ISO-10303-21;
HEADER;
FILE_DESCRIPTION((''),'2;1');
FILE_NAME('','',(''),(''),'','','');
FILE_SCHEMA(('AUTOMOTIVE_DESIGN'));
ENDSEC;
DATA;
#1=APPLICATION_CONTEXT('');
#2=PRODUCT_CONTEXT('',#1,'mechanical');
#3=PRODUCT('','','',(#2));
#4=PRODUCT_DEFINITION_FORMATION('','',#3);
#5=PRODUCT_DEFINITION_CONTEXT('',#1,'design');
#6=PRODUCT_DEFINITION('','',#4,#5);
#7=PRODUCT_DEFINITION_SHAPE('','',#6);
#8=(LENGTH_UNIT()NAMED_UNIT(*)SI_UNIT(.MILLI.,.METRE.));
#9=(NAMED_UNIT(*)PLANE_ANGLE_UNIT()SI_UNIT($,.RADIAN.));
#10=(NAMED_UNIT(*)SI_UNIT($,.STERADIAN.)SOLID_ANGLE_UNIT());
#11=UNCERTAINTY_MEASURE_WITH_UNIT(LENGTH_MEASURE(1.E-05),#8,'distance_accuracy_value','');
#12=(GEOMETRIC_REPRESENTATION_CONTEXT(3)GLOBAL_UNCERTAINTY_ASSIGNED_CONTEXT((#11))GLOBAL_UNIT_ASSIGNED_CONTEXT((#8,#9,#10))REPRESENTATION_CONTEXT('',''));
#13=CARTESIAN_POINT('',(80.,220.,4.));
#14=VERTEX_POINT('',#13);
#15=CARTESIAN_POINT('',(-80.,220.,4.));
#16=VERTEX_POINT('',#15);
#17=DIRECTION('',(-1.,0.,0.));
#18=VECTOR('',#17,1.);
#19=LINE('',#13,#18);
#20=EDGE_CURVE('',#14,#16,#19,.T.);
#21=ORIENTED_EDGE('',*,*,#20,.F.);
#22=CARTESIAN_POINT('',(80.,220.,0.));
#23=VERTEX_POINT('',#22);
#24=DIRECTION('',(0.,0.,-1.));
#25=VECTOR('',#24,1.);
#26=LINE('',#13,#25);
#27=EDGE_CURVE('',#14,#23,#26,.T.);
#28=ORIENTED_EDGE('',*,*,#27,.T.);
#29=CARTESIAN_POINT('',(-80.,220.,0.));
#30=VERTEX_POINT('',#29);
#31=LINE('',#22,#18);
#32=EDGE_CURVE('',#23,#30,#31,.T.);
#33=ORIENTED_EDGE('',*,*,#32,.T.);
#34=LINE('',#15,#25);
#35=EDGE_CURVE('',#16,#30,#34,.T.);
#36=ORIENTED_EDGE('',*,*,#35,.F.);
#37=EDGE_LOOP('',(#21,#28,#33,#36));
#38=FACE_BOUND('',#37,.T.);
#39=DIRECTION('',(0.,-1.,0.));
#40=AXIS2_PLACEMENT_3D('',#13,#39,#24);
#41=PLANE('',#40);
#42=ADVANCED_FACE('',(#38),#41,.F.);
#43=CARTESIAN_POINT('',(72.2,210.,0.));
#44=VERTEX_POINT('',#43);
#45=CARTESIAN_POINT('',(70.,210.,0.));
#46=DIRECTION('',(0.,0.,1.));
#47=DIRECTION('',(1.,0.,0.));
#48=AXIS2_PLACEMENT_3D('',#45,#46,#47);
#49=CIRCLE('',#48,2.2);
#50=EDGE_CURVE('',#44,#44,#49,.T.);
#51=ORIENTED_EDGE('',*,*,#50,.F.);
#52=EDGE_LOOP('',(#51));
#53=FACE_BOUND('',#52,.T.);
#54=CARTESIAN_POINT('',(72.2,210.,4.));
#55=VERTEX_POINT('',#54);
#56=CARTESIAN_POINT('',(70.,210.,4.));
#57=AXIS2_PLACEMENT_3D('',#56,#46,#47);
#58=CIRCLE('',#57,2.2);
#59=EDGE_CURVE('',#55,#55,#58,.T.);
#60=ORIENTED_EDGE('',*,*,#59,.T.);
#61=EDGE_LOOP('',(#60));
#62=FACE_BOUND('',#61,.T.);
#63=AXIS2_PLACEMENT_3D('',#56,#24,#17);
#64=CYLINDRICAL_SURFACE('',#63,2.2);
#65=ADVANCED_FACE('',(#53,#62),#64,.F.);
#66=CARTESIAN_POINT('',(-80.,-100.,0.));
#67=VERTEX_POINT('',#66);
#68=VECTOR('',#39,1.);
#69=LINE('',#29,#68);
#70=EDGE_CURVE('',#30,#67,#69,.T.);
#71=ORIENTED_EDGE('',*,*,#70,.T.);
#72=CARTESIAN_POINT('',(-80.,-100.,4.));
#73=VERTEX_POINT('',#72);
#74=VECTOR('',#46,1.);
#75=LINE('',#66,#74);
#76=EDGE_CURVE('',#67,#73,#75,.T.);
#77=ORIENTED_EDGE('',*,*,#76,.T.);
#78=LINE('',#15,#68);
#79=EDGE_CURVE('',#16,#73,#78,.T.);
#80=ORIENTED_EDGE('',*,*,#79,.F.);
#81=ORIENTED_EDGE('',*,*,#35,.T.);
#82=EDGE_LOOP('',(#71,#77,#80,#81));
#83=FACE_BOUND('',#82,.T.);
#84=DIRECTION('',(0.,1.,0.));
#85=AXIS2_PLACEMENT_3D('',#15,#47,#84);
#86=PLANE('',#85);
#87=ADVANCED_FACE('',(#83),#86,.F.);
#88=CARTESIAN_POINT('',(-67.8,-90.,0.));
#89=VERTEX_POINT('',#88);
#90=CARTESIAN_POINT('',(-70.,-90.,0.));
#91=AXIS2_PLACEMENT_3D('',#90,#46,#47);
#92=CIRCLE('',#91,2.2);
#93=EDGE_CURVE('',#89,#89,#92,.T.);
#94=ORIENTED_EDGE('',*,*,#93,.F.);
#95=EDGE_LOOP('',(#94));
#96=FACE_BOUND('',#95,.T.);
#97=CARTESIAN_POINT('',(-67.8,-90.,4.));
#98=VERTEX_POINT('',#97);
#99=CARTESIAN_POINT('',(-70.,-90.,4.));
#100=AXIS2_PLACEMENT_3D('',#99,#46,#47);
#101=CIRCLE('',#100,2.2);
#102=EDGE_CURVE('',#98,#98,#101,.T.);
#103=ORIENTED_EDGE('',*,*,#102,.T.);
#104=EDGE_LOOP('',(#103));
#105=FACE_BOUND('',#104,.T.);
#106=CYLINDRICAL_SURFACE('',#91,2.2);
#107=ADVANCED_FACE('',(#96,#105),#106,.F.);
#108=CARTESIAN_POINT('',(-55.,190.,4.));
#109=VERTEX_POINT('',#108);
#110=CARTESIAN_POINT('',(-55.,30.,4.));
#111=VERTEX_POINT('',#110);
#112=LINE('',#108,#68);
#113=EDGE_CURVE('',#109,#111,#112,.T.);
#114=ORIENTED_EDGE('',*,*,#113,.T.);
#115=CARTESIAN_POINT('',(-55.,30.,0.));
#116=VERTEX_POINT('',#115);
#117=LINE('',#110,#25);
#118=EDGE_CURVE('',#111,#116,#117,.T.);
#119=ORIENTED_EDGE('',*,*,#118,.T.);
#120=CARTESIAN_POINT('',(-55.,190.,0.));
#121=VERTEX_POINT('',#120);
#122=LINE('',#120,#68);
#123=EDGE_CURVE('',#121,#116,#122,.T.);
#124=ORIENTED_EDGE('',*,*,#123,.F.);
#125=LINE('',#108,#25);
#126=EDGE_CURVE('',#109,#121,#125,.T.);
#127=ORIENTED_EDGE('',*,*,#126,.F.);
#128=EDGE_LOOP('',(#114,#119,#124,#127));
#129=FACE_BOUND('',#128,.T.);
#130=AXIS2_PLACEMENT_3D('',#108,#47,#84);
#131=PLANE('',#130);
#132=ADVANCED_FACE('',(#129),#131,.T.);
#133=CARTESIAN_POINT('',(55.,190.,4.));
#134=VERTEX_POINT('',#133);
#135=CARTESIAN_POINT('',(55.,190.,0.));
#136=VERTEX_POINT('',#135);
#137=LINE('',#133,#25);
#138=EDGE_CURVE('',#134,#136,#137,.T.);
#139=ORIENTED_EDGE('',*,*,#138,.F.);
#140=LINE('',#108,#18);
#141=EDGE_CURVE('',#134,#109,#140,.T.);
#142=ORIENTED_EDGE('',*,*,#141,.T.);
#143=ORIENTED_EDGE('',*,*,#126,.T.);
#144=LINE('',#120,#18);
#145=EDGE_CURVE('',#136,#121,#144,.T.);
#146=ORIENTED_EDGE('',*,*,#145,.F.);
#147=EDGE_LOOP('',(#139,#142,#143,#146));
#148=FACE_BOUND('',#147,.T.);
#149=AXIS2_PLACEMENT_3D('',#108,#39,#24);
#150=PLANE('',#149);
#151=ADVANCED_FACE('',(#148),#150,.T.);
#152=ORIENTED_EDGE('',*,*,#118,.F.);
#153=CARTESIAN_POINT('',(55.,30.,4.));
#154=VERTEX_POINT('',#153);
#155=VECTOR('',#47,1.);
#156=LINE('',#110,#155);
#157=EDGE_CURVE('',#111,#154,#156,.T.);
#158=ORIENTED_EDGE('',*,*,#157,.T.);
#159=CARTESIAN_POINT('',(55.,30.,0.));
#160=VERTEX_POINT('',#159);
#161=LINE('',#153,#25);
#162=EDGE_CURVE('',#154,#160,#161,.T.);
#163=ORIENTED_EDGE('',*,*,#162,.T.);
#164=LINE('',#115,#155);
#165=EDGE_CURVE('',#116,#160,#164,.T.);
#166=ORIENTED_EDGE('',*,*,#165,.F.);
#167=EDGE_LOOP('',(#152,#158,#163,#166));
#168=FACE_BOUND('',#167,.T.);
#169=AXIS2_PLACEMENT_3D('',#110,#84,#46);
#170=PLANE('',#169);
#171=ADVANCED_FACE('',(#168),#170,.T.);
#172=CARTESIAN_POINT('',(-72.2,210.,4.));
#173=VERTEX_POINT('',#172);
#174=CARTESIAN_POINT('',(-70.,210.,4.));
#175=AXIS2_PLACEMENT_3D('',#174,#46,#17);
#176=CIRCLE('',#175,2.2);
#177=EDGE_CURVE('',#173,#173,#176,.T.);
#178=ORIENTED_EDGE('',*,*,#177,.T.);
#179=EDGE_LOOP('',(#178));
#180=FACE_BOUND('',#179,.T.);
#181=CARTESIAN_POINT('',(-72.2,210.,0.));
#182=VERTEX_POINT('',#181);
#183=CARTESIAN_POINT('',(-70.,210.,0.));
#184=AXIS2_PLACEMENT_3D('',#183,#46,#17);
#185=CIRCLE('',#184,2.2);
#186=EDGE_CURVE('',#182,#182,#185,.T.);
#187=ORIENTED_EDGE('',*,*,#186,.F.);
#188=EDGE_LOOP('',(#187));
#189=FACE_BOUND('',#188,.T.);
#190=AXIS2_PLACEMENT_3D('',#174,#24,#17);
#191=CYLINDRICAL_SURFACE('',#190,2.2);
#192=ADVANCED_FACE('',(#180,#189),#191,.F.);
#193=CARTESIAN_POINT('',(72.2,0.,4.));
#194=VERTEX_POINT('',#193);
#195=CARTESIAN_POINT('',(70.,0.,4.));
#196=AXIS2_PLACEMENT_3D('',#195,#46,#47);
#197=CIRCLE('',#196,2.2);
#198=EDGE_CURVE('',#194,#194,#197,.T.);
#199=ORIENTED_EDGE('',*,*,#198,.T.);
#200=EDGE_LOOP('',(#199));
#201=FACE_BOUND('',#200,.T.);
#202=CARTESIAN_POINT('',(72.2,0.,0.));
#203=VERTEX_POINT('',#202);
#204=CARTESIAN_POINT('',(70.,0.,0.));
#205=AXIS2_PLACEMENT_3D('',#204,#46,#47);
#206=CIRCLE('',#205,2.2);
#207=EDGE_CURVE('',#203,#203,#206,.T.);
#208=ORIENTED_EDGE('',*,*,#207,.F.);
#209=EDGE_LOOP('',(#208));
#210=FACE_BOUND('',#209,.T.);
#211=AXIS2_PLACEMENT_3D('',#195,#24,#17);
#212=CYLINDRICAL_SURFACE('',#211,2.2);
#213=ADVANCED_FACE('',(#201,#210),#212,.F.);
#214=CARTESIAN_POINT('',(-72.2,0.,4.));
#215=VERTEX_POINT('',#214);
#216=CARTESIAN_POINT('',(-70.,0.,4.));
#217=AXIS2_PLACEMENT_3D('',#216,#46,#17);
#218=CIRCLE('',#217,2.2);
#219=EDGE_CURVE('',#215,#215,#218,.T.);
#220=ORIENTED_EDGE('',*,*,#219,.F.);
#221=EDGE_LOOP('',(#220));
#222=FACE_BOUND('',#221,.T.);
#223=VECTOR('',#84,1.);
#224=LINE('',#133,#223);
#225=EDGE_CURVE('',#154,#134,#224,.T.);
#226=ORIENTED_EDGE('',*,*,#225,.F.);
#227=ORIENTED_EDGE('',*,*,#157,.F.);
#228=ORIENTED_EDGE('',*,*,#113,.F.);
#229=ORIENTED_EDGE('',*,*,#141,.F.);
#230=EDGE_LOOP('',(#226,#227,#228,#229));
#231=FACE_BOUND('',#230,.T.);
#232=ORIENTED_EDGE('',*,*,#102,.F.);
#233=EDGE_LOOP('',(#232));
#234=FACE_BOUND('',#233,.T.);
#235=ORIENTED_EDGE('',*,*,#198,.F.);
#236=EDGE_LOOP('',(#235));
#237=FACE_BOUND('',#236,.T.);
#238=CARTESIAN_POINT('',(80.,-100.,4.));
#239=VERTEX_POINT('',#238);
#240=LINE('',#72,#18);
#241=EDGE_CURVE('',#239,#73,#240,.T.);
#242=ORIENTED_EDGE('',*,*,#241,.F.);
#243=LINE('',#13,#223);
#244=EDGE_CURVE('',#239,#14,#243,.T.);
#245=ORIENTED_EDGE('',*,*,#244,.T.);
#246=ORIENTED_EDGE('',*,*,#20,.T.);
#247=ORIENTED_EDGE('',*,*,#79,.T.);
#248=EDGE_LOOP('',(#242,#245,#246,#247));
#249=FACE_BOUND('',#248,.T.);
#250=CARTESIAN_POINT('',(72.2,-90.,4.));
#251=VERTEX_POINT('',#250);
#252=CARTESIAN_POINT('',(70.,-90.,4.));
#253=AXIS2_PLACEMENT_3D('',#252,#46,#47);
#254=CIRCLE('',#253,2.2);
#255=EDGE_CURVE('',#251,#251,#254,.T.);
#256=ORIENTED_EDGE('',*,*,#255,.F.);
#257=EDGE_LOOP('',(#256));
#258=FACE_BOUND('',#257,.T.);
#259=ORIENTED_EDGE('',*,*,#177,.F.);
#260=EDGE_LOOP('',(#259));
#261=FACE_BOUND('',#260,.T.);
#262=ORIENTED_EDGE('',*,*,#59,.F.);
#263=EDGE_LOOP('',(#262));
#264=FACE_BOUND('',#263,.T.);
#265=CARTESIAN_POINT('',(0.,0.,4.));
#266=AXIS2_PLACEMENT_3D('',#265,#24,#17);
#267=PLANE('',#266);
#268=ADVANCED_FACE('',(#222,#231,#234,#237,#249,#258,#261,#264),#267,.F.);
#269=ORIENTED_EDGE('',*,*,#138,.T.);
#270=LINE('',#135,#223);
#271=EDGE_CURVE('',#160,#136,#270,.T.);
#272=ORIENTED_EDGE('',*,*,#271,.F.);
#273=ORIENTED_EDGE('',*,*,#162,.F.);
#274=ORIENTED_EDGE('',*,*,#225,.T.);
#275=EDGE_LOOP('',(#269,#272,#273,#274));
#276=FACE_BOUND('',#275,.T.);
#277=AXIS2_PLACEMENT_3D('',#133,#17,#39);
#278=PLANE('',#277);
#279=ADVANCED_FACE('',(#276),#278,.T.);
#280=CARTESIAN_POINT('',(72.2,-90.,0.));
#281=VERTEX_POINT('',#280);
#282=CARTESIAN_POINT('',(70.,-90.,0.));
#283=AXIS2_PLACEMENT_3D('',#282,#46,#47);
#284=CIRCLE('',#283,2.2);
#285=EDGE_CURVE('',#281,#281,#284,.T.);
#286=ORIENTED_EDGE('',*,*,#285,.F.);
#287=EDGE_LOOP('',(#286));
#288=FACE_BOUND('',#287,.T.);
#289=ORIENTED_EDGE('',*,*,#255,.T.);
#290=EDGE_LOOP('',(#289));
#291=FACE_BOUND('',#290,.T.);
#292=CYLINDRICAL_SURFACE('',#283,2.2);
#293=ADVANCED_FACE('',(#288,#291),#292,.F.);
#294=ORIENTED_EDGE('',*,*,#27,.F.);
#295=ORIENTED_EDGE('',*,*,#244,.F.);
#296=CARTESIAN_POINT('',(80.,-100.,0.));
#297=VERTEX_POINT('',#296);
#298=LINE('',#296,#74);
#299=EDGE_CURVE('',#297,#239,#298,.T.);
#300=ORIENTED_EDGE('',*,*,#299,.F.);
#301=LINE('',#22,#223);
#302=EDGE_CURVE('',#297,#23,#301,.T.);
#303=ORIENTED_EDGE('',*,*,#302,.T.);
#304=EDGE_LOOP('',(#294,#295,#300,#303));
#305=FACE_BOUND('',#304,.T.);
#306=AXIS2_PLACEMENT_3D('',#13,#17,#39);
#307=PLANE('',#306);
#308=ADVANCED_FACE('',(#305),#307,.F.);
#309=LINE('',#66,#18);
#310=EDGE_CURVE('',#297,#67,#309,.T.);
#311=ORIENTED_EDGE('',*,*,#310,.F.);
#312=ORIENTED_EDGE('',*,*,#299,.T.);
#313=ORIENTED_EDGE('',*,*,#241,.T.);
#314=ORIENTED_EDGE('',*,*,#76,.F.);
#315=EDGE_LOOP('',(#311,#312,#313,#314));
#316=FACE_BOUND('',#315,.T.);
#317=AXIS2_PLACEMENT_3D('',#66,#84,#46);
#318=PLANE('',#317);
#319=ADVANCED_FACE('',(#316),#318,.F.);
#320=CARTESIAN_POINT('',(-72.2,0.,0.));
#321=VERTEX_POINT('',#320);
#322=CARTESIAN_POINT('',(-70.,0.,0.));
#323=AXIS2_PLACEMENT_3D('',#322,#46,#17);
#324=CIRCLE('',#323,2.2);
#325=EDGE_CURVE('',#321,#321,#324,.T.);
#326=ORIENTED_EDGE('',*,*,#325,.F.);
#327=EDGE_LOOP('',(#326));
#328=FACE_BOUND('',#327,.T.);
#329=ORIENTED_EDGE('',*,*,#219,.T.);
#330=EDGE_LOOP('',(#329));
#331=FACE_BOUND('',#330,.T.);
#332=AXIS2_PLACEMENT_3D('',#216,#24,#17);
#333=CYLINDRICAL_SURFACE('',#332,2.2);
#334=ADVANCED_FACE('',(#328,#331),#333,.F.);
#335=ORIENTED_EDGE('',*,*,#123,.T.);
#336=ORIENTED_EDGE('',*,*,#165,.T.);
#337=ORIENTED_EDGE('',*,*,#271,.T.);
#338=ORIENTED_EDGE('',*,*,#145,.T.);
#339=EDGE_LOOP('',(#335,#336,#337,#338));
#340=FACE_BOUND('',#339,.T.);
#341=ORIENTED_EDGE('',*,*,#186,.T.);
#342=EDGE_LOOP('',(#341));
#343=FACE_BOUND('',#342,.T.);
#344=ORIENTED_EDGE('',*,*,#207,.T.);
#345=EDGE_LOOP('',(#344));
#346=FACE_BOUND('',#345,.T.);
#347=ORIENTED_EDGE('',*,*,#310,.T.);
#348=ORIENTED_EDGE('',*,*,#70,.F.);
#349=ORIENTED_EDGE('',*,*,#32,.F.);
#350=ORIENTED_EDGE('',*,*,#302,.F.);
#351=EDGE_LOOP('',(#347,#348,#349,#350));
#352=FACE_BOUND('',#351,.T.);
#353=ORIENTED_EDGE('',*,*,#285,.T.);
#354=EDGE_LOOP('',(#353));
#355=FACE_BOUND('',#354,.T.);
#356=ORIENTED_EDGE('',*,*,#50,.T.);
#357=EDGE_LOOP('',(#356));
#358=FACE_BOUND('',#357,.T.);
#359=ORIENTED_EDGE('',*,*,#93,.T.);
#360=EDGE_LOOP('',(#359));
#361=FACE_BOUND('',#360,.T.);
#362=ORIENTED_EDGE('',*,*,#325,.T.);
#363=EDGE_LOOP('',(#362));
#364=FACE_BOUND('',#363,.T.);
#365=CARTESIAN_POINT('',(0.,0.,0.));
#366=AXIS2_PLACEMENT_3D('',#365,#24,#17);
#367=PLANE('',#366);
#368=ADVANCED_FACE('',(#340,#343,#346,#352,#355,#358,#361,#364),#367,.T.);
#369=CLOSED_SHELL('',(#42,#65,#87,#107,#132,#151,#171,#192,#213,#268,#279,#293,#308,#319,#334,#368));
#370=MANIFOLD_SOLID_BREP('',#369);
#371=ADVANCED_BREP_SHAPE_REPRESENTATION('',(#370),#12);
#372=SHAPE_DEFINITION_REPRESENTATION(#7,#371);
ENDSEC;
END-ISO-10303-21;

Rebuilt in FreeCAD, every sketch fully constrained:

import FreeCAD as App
import Part
import Sketcher

V = App.Vector
Q = App.Units.Quantity

doc = App.newDocument("Part")
body = doc.addObject("PartDesign::Body", "Body")

# Sketch on XY plane
sketch1 = body.newObject("Sketcher::SketchObject", "Sketch")
sketch1.AttachmentSupport = (doc.getObject("XY_Plane"), [""])
sketch1.MapMode = "FlatFace"
sketch1.addGeometry(Part.LineSegment(V(-80, 220, 0), V(-80, -220, 0)), False)
sketch1.addGeometry(Part.LineSegment(V(-80, -220, 0), V(80, -220, 0)), False)
sketch1.addGeometry(Part.LineSegment(V(80, -220, 0), V(80, 220, 0)), False)
sketch1.addGeometry(Part.LineSegment(V(80, 220, 0), V(-80, 220, 0)), False)
sketch1.addGeometry(Part.Circle(V(-70, -210, 0), V(0, 0, 1), 2.2), False)
sketch1.addGeometry(Part.Circle(V(70, -210, 0), V(0, 0, 1), 2.2), False)
sketch1.addGeometry(Part.Circle(V(-70, 0, 0), V(0, 0, 1), 2.2), False)
sketch1.addGeometry(Part.Circle(V(-70, 210, 0), V(0, 0, 1), 2.2), False)
sketch1.addGeometry(Part.Circle(V(70, 0, 0), V(0, 0, 1), 2.2), False)
sketch1.addGeometry(Part.LineSegment(V(55, 30, 0), V(-55, 30, 0)), False)
sketch1.addGeometry(Part.LineSegment(V(-55, 30, 0), V(-55, 190, 0)), False)
sketch1.addGeometry(Part.LineSegment(V(-55, 190, 0), V(55, 190, 0)), False)
sketch1.addGeometry(Part.LineSegment(V(55, 190, 0), V(55, 30, 0)), False)
sketch1.addGeometry(Part.Circle(V(70, 210, 0), V(0, 0, 1), 2.2), False)
sketch1.addConstraint(Sketcher.Constraint("Coincident", 0, 2, 1, 1))
sketch1.addConstraint(Sketcher.Constraint("Coincident", 1, 2, 2, 1))
sketch1.addConstraint(Sketcher.Constraint("Coincident", 2, 2, 3, 1))
sketch1.addConstraint(Sketcher.Constraint("Coincident", 3, 2, 0, 1))
sketch1.addConstraint(Sketcher.Constraint("Coincident", 9, 2, 10, 1))
sketch1.addConstraint(Sketcher.Constraint("Coincident", 10, 2, 11, 1))
sketch1.addConstraint(Sketcher.Constraint("Coincident", 11, 2, 12, 1))
sketch1.addConstraint(Sketcher.Constraint("Coincident", 12, 2, 9, 1))
sketch1.addConstraint(Sketcher.Constraint("Vertical", 0))
sketch1.addConstraint(Sketcher.Constraint("Horizontal", 1))
sketch1.addConstraint(Sketcher.Constraint("Vertical", 2))
sketch1.addConstraint(Sketcher.Constraint("Horizontal", 3))
sketch1.addConstraint(Sketcher.Constraint("Horizontal", 9))
sketch1.addConstraint(Sketcher.Constraint("Vertical", 10))
sketch1.addConstraint(Sketcher.Constraint("Horizontal", 11))
sketch1.addConstraint(Sketcher.Constraint("Vertical", 12))
sketch1.addConstraint(Sketcher.Constraint("Equal", 4, 5))
sketch1.addConstraint(Sketcher.Constraint("Equal", 5, 6))
sketch1.addConstraint(Sketcher.Constraint("Equal", 6, 7))
sketch1.addConstraint(Sketcher.Constraint("Equal", 7, 8))
sketch1.addConstraint(Sketcher.Constraint("Equal", 8, 13))
sketch1.addConstraint(Sketcher.Constraint("Symmetric", 5, 3, 7, 3, -1, 1))
sketch1.addConstraint(Sketcher.Constraint("Symmetric", 6, 3, 8, 3, -1, 1))
sketch1.addConstraint(Sketcher.Constraint("Symmetric", 4, 3, 13, 3, -1, 1))
sketch1.addConstraint(Sketcher.Constraint("Symmetric", 0, 2, 2, 2, -1, 1))
sketch1.addConstraint(Sketcher.Constraint("Symmetric", 4, 3, 5, 3, -2))
sketch1.addConstraint(Sketcher.Constraint("PointOnObject", 6, 3, -1))
sketch1.addConstraint(Sketcher.Constraint("Vertical", 4, 3, 6, 3))
sketch1.addConstraint(Sketcher.Constraint("Equal", 3, 10))
sketch1.addConstraint(Sketcher.Constraint("Diameter", 4, Q("4.4 mm")))
sketch1.addConstraint(Sketcher.Constraint("DistanceX", 1, 1, 1, 2, Q("160 mm")))
sketch1.addConstraint(Sketcher.Constraint("DistanceX", 9, 2, 9, 1, Q("110 mm")))
sketch1.addConstraint(Sketcher.Constraint("DistanceY", 0, 2, 0, 1, Q("440 mm")))
sketch1.addConstraint(Sketcher.Constraint("DistanceX", 4, 3, -1, 1, Q("70 mm")))
sketch1.addConstraint(Sketcher.Constraint("DistanceY", 4, 3, -1, 1, Q("210 mm")))
sketch1.addConstraint(Sketcher.Constraint("DistanceX", 9, 2, -1, 1, Q("55 mm")))
sketch1.addConstraint(Sketcher.Constraint("DistanceY", -1, 1, 9, 2, Q("30 mm")))
pad1 = body.newObject("PartDesign::Pad", "Pad")
pad1.Profile = sketch1
pad1.Length = 4

# Sketch on XY plane
sketch2 = body.newObject("Sketcher::SketchObject", "Sketch001")
sketch2.AttachmentSupport = (doc.getObject("XY_Plane"), [""])
sketch2.MapMode = "FlatFace"
sketch2.AttachmentOffset = App.Placement(V(0, 0, 4), App.Rotation())
sketch2.addGeometry(Part.Circle(V(-70, -90, 0), V(0, 0, 1), 2.2), False)
sketch2.addGeometry(Part.Circle(V(70, -90, 0), V(0, 0, 1), 2.2), False)
sketch2.addGeometry(Part.LineSegment(V(-80, -100, 0), V(-80, -220, 0)), False)
sketch2.addGeometry(Part.LineSegment(V(-80, -220, 0), V(80, -220, 0)), False)
sketch2.addGeometry(Part.LineSegment(V(80, -220, 0), V(80, -100, 0)), False)
sketch2.addGeometry(Part.LineSegment(V(80, -100, 0), V(-80, -100, 0)), False)
sketch2.addConstraint(Sketcher.Constraint("Coincident", 2, 2, 3, 1))
sketch2.addConstraint(Sketcher.Constraint("Coincident", 3, 2, 4, 1))
sketch2.addConstraint(Sketcher.Constraint("Coincident", 4, 2, 5, 1))
sketch2.addConstraint(Sketcher.Constraint("Coincident", 5, 2, 2, 1))
sketch2.addConstraint(Sketcher.Constraint("Vertical", 2))
sketch2.addConstraint(Sketcher.Constraint("Horizontal", 3))
sketch2.addConstraint(Sketcher.Constraint("Vertical", 4))
sketch2.addConstraint(Sketcher.Constraint("Horizontal", 5))
sketch2.addConstraint(Sketcher.Constraint("Equal", 0, 1))
sketch2.addConstraint(Sketcher.Constraint("Symmetric", 0, 3, 1, 3, -2))
sketch2.addConstraint(Sketcher.Constraint("Diameter", 0, Q("4.4 mm")))
sketch2.addConstraint(Sketcher.Constraint("DistanceX", 3, 1, 3, 2, Q("160 mm")))
sketch2.addConstraint(Sketcher.Constraint("DistanceY", 2, 2, 2, 1, Q("120 mm")))
sketch2.addConstraint(Sketcher.Constraint("DistanceX", 0, 3, -1, 1, Q("70 mm")))
sketch2.addConstraint(Sketcher.Constraint("DistanceY", 0, 3, -1, 1, Q("90 mm")))
sketch2.addConstraint(Sketcher.Constraint("DistanceX", 2, 2, -1, 1, Q("80 mm")))
sketch2.addConstraint(Sketcher.Constraint("DistanceY", 2, 2, -1, 1, Q("220 mm")))
pocket1 = body.newObject("PartDesign::Pocket", "Pocket")
pocket1.Profile = sketch2
pocket1.Type = "ThroughAll"

doc.recompute()
